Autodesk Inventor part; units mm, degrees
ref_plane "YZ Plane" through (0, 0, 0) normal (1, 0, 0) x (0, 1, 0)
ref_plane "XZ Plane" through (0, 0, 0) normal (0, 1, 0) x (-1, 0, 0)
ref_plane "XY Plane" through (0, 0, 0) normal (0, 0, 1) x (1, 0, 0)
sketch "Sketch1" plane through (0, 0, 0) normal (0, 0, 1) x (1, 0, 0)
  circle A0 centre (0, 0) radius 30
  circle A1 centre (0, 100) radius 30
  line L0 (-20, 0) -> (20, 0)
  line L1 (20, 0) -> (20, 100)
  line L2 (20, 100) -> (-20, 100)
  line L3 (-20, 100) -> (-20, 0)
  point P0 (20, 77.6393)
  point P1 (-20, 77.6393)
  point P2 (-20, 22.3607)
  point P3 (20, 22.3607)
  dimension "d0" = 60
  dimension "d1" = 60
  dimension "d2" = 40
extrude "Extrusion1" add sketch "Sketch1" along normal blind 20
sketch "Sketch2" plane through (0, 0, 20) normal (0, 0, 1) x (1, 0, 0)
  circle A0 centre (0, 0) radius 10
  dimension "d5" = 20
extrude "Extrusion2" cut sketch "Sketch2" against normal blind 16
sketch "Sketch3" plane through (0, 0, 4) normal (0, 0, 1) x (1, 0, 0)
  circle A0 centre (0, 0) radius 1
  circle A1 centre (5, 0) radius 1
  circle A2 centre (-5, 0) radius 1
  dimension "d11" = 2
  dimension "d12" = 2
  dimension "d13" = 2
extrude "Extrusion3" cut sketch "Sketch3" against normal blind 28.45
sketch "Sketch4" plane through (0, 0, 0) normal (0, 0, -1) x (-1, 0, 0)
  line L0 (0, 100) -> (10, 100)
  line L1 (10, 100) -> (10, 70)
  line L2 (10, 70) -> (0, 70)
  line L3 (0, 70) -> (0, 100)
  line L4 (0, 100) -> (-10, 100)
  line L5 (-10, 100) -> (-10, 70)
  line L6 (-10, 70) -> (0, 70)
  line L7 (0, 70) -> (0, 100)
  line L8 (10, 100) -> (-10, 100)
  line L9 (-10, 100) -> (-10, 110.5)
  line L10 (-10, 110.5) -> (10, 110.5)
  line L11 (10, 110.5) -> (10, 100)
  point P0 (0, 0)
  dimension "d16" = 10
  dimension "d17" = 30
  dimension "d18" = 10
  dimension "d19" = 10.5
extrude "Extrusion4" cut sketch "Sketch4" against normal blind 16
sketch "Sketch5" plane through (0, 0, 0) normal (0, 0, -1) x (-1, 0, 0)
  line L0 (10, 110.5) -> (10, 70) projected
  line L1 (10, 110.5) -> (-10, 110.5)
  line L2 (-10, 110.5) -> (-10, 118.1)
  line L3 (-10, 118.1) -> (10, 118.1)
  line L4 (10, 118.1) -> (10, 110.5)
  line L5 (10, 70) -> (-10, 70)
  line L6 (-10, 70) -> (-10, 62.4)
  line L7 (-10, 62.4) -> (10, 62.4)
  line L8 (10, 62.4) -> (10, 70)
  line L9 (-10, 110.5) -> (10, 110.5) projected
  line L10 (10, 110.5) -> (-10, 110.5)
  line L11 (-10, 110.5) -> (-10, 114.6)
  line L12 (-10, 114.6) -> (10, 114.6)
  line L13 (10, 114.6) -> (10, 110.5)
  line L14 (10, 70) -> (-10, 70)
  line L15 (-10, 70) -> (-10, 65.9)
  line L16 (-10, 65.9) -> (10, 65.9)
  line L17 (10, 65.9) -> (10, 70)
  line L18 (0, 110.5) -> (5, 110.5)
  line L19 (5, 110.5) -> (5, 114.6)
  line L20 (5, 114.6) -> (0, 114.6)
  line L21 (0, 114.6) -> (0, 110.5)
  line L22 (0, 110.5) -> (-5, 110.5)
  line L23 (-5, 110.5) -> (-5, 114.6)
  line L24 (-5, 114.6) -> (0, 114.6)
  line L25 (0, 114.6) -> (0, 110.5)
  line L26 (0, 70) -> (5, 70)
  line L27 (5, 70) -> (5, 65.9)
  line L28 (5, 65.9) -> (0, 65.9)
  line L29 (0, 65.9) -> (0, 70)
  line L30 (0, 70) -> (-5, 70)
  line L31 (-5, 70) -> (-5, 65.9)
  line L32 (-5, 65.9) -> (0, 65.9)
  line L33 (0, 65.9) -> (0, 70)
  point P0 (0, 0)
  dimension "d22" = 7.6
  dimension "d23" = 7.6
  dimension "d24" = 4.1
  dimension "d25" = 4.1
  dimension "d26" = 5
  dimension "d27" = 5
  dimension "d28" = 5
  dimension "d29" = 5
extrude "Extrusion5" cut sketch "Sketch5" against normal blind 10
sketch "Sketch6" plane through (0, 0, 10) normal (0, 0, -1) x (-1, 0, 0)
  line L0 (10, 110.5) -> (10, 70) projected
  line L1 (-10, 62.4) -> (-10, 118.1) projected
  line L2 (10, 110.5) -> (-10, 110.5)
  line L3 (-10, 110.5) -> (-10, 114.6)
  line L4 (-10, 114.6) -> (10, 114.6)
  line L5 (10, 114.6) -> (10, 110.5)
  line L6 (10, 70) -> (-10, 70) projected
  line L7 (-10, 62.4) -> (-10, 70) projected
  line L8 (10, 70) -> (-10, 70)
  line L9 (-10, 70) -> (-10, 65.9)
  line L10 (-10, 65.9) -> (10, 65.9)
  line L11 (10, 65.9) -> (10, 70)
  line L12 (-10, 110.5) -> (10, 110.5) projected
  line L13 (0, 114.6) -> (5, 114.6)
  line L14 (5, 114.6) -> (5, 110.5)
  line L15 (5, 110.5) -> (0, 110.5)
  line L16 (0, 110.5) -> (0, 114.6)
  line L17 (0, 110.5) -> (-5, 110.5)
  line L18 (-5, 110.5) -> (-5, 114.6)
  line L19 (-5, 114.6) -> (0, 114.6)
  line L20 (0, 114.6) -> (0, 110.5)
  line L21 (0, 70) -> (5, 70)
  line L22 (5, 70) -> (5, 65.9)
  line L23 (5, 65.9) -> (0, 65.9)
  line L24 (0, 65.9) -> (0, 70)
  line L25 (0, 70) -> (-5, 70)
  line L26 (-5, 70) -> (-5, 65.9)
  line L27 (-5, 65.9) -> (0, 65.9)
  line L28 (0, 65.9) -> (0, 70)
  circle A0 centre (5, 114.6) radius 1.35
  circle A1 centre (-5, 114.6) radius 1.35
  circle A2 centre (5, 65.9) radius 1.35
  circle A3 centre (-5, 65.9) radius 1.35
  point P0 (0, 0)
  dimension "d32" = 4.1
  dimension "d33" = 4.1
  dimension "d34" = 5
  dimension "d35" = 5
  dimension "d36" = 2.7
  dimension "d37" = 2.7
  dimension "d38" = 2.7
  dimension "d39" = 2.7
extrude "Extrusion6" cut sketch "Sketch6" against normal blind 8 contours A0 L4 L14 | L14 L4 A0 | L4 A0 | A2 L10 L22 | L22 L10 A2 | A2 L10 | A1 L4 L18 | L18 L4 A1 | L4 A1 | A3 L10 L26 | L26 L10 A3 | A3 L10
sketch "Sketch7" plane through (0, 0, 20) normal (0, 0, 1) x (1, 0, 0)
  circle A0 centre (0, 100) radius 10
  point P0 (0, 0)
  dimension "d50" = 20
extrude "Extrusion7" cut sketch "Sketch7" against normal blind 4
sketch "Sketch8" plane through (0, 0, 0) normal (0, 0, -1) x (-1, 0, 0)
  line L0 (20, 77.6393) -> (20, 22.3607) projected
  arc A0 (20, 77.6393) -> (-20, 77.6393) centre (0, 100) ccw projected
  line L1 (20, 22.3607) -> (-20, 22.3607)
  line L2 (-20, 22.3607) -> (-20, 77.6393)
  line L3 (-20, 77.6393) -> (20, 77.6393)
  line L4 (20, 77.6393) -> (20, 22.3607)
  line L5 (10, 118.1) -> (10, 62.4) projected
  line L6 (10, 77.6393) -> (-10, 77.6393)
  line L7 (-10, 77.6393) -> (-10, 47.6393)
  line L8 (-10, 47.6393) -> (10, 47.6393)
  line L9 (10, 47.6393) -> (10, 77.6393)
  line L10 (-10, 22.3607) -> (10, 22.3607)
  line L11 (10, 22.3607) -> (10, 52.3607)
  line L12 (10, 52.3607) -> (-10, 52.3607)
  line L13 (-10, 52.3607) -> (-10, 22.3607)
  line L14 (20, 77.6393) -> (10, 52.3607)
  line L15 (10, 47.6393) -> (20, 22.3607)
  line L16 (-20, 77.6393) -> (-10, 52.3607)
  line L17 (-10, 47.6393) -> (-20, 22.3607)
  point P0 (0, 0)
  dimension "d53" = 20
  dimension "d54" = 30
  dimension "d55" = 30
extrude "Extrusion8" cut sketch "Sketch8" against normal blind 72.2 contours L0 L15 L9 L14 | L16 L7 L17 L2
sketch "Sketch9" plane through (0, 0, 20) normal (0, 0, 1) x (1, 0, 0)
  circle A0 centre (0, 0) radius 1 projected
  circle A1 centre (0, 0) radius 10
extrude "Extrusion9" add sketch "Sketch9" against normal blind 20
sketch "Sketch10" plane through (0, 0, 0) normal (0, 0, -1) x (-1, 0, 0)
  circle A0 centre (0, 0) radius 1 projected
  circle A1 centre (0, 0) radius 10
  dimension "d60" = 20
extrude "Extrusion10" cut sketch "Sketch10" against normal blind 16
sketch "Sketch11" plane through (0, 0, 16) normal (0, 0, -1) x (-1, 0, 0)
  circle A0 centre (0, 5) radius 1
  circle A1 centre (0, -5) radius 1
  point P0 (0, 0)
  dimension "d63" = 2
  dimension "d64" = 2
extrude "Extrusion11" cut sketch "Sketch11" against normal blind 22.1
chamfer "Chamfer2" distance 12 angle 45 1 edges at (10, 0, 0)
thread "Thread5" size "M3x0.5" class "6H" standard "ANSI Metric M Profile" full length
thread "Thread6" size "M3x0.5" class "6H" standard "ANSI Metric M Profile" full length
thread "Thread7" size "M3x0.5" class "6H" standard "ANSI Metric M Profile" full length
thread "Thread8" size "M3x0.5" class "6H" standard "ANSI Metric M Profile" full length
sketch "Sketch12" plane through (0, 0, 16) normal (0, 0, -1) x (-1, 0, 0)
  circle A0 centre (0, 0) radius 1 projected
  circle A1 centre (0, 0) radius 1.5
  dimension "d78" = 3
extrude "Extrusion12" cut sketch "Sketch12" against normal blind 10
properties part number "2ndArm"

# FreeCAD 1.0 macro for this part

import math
import FreeCAD as App
import Part
import Sketcher

V = App.Vector


def edges_at(feature, points):
    """Names of the edges that pass closest to the given points."""
    edges = feature.Shape.Edges
    near = lambda p: min(range(len(edges)), key=lambda i: edges[i].distToShape(Part.Vertex(*p))[0])
    return sorted({f"Edge{near(p) + 1}" for p in points})

doc = App.newDocument("Part")
params = doc.addObject("Spreadsheet::Sheet", "Params")
for row, (alias, value) in enumerate([
    ("sketch1_radius", "30 mm"),
    ("pad1_length", "20 mm"),
    ("sketch2_diameter", "20 mm"),
    ("pocket1_length", "16 mm"),
    ("sketch3_diameter", "2 mm"),
    ("pocket2_length", "28.45 mm"),
    ("sketch4_height", "40.5 mm"),
    ("pocket3_length", "16 mm"),
    ("sketch5_height", "7.6 mm"),
    ("sketch5_width", "20 mm"),
    ("pocket4_length", "10 mm"),
    ("sketch6_diameter", "2.7 mm"),
    ("pocket5_length", "8 mm"),
    ("sketch7_diameter", "20 mm"),
    ("pocket6_length", "4 mm"),
    ("pocket7_length", "72.2 mm"),
    ("sketch9_diameter", "20 mm"),
    ("sketch9_diameter2", "2 mm"),
    ("pad2_length", "20 mm"),
    ("sketch10_diameter", "20 mm"),
    ("sketch10_diameter2", "2 mm"),
    ("pocket8_length", "16 mm"),
    ("sketch11_diameter", "2 mm"),
    ("pocket9_length", "22.1 mm"),
    ("chamfer_size", "12 mm"),
    ("sketch12_diameter", "3 mm"),
    ("sketch12_diameter2", "2 mm"),
    ("pocket10_length", "10 mm"),
], start=1):
    params.set(f"A{row}", alias)
    params.set(f"B{row}", "=" + value)
    params.setAlias(f"B{row}", alias)

body = doc.addObject("PartDesign::Body", "Body")

# Sketch on XY plane
sketch1 = doc.addObject("Sketcher::SketchObject", "Sketch")
body.addObject(sketch1)
sketch1.AttachmentSupport = (doc.XY_Plane, [""])
sketch1.MapMode = "FlatFace"
sketch1.addGeometry([
    Part.ArcOfCircle(Part.Circle(V(0, 0, 0), V(0, 0, 1), 30), math.radians(131.810315), math.radians(408.189685)),
    Part.LineSegment(V(20, 22.36068, 0), V(20, 77.63932, 0)),
    Part.ArcOfCircle(Part.Circle(V(0, 100, 0), V(0, 0, 1), 30), math.radians(-48.189685), math.radians(228.189685)),
    Part.LineSegment(V(-20, 77.63932, 0), V(-20, 22.36068, 0)),
], False)
sketch1.addConstraint([
    Sketcher.Constraint("Coincident", 0, 2, 1, 1),
    Sketcher.Constraint("Coincident", 1, 2, 2, 1),
    Sketcher.Constraint("Coincident", 2, 2, 3, 1),
    Sketcher.Constraint("Coincident", 3, 2, 0, 1),
    Sketcher.Constraint("Vertical", 1),
    Sketcher.Constraint("Vertical", 3),
    Sketcher.Constraint("Coincident", 0, 3, -1, 1),
    Sketcher.Constraint("Equal", 0, 2),
    Sketcher.Constraint("Symmetric", 1, 2, 2, 2, -2),
    Sketcher.Constraint("Radius", 0, 30.0),
    Sketcher.Constraint("DistanceX", 2, 2, 1, 2, 40.0),
    Sketcher.Constraint("DistanceY", -1, 1, 2, 3, 100.0),
])
sketch1.setExpression("Constraints[9]", "Params.sketch1_radius")
pad1 = doc.addObject("PartDesign::Pad", "Pad")
body.addObject(pad1)
pad1.Profile = sketch1
pad1.setExpression("Length", "Params.pad1_length")

# Sketch on XY plane
sketch2 = doc.addObject("Sketcher::SketchObject", "Sketch001")
body.addObject(sketch2)
sketch2.AttachmentSupport = (doc.XY_Plane, [""])
sketch2.MapMode = "FlatFace"
sketch2.AttachmentOffset = App.Placement(V(0, 0, 20), App.Rotation())
sketch2.addGeometry(Part.Circle(V(0, 0, 0), V(0, 0, 1), 10), False)
sketch2.addConstraint([
    Sketcher.Constraint("Coincident", 0, 3, -1, 1),
    Sketcher.Constraint("Diameter", 0, 20.0),
])
sketch2.setExpression("Constraints[1]", "Params.sketch2_diameter")
pocket1 = doc.addObject("PartDesign::Pocket", "Pocket")
body.addObject(pocket1)
pocket1.Profile = sketch2
pocket1.setExpression("Length", "Params.pocket1_length")

# Sketch on XY plane
sketch3 = doc.addObject("Sketcher::SketchObject", "Sketch002")
body.addObject(sketch3)
sketch3.AttachmentSupport = (doc.XY_Plane, [""])
sketch3.MapMode = "FlatFace"
sketch3.AttachmentOffset = App.Placement(V(0, 0, 4), App.Rotation())
sketch3.addGeometry([
    Part.Circle(V(0, 0, 0), V(0, 0, 1), 1),
    Part.Circle(V(5, 0, 0), V(0, 0, 1), 1),
    Part.Circle(V(-5, 0, 0), V(0, 0, 1), 1),
], False)
sketch3.addConstraint([
    Sketcher.Constraint("Coincident", 0, 3, -1, 1),
    Sketcher.Constraint("Equal", 0, 1),
    Sketcher.Constraint("Equal", 1, 2),
    Sketcher.Constraint("Symmetric", 1, 3, 2, 3, -1, 1),
    Sketcher.Constraint("PointOnObject", 1, 3, -1),
    Sketcher.Constraint("Diameter", 0, 2.0),
    Sketcher.Constraint("DistanceX", -1, 1, 1, 3, 5.0),
])
sketch3.setExpression("Constraints[5]", "Params.sketch3_diameter")
pocket2 = doc.addObject("PartDesign::Pocket", "Pocket001")
body.addObject(pocket2)
pocket2.Profile = sketch3
pocket2.setExpression("Length", "Params.pocket2_length")

# Sketch on XY plane
sketch4 = doc.addObject("Sketcher::SketchObject", "Sketch003")
body.addObject(sketch4)
sketch4.AttachmentSupport = (doc.XY_Plane, [""])
sketch4.MapMode = "FlatFace"
sketch4.addGeometry([
    Part.LineSegment(V(10, 110.5, 0), V(10, 70, 0)),
    Part.LineSegment(V(10, 70, 0), V(-10, 70, 0)),
    Part.LineSegment(V(-10, 70, 0), V(-10, 110.5, 0)),
    Part.LineSegment(V(-10, 110.5, 0), V(10, 110.5, 0)),
], False)
sketch4.addConstraint([
    Sketcher.Constraint("Coincident", 0, 2, 1, 1),
    Sketcher.Constraint("Coincident", 1, 2, 2, 1),
    Sketcher.Constraint("Coincident", 2, 2, 3, 1),
    Sketcher.Constraint("Coincident", 3, 2, 0, 1),
    Sketcher.Constraint("Vertical", 0),
    Sketcher.Constraint("Horizontal", 1),
    Sketcher.Constraint("Vertical", 2),
    Sketcher.Constraint("Horizontal", 3),
    Sketcher.Constraint("DistanceX", -1, 1, 0, 2, 10.0),
    Sketcher.Constraint("DistanceX", 1, 2, -1, 1, 10.0),
    Sketcher.Constraint("DistanceY", 0, 2, 0, 1, 40.5),
    Sketcher.Constraint("DistanceY", -1, 1, 0, 2, 70.0),
])
sketch4.setExpression("Constraints[10]", "Params.sketch4_height")
pocket3 = doc.addObject("PartDesign::Pocket", "Pocket002")
body.addObject(pocket3)
pocket3.Profile = sketch4
pocket3.setExpression("Length", "Params.pocket3_length")
pocket3.Reversed = True

# Sketch on XY plane
sketch5 = doc.addObject("Sketcher::SketchObject", "Sketch004")
body.addObject(sketch5)
sketch5.AttachmentSupport = (doc.XY_Plane, [""])
sketch5.MapMode = "FlatFace"
sketch5.addGeometry([
    Part.LineSegment(V(-10, 70, 0), V(10, 70, 0)),  # 0
    Part.LineSegment(V(10, 70, 0), V(10, 62.4, 0)),  # 1
    Part.LineSegment(V(10, 62.4, 0), V(-10, 62.4, 0)),  # 2
    Part.LineSegment(V(-10, 62.4, 0), V(-10, 70, 0)),  # 3
    Part.LineSegment(V(-10, 110.5, 0), V(-10, 118.1, 0)),  # 4
    Part.LineSegment(V(-10, 118.1, 0), V(10, 118.1, 0)),  # 5
    Part.LineSegment(V(10, 118.1, 0), V(10, 110.5, 0)),  # 6
    Part.LineSegment(V(10, 110.5, 0), V(-10, 110.5, 0)),  # 7
], False)
sketch5.addConstraint([
    Sketcher.Constraint("Coincident", 0, 2, 1, 1),
    Sketcher.Constraint("Coincident", 1, 2, 2, 1),
    Sketcher.Constraint("Coincident", 2, 2, 3, 1),
    Sketcher.Constraint("Coincident", 3, 2, 0, 1),
    Sketcher.Constraint("Coincident", 4, 2, 5, 1),
    Sketcher.Constraint("Coincident", 5, 2, 6, 1),
    Sketcher.Constraint("Coincident", 6, 2, 7, 1),
    Sketcher.Constraint("Coincident", 7, 2, 4, 1),
    Sketcher.Constraint("Horizontal", 0),
    Sketcher.Constraint("Vertical", 1),
    Sketcher.Constraint("Horizontal", 2),
    Sketcher.Constraint("Vertical", 3),
    Sketcher.Constraint("Vertical", 4),
    Sketcher.Constraint("Horizontal", 5),
    Sketcher.Constraint("Vertical", 6),
    Sketcher.Constraint("Horizontal", 7),
    Sketcher.Constraint("Vertical", 3, 2, 4, 2),
    Sketcher.Constraint("Vertical", 1, 2, 5, 2),
    Sketcher.Constraint("Equal", 3, 4),
    Sketcher.Constraint("DistanceY", 1, 2, 1, 1, 7.6),
    Sketcher.Constraint("DistanceX", 0, 1, 0, 2, 20.0),
    Sketcher.Constraint("DistanceX", -1, 1, 0, 2, 10.0),
    Sketcher.Constraint("DistanceY", -1, 1, 0, 2, 70.0),
    Sketcher.Constraint("DistanceY", -1, 1, 4, 2, 118.1),
])
sketch5.setExpression("Constraints[19]", "Params.sketch5_height")
sketch5.setExpression("Constraints[20]", "Params.sketch5_width")
pocket4 = doc.addObject("PartDesign::Pocket", "Pocket003")
body.addObject(pocket4)
pocket4.Profile = sketch5
pocket4.setExpression("Length", "Params.pocket4_length")
pocket4.Reversed = True

# Sketch on XY plane
sketch6 = doc.addObject("Sketcher::SketchObject", "Sketch005")
body.addObject(sketch6)
sketch6.AttachmentSupport = (doc.XY_Plane, [""])
sketch6.MapMode = "FlatFace"
sketch6.AttachmentOffset = App.Placement(V(0, 0, 10), App.Rotation())
sketch6.addGeometry([
    Part.Circle(V(-5, 114.6, 0), V(0, 0, 1), 1.35),
    Part.Circle(V(-5, 65.9, 0), V(0, 0, 1), 1.35),
    Part.Circle(V(5, 114.6, 0), V(0, 0, 1), 1.35),
    Part.Circle(V(5, 65.9, 0), V(0, 0, 1), 1.35),
], False)
sketch6.addConstraint([
    Sketcher.Constraint("Equal", 0, 1),
    Sketcher.Constraint("Equal", 1, 2),
    Sketcher.Constraint("Equal", 2, 3),
    Sketcher.Constraint("Symmetric", 0, 3, 2, 3, -2),
    Sketcher.Constraint("Symmetric", 1, 3, 3, 3, -2),
    Sketcher.Constraint("Vertical", 0, 3, 1, 3),
    Sketcher.Constraint("Diameter", 0, 2.7),
    Sketcher.Constraint("DistanceX", 0, 3, -1, 1, 5.0),
    Sketcher.Constraint("DistanceY", -1, 1, 0, 3, 114.6),
    Sketcher.Constraint("DistanceY", -1, 1, 1, 3, 65.9),
])
sketch6.setExpression("Constraints[6]", "Params.sketch6_diameter")
pocket5 = doc.addObject("PartDesign::Pocket", "Pocket004")
body.addObject(pocket5)
pocket5.Profile = sketch6
pocket5.setExpression("Length", "Params.pocket5_length")
pocket5.Reversed = True

# Sketch on XY plane
sketch7 = doc.addObject("Sketcher::SketchObject", "Sketch006")
body.addObject(sketch7)
sketch7.AttachmentSupport = (doc.XY_Plane, [""])
sketch7.MapMode = "FlatFace"
sketch7.AttachmentOffset = App.Placement(V(0, 0, 20), App.Rotation())
sketch7.addGeometry(Part.Circle(V(0, 100, 0), V(0, 0, 1), 10), False)
sketch7.addConstraint([
    Sketcher.Constraint("PointOnObject", 0, 3, -2),
    Sketcher.Constraint("Diameter", 0, 20.0),
    Sketcher.Constraint("DistanceY", -1, 1, 0, 3, 100.0),
])
sketch7.setExpression("Constraints[1]", "Params.sketch7_diameter")
pocket6 = doc.addObject("PartDesign::Pocket", "Pocket005")
body.addObject(pocket6)
pocket6.Profile = sketch7
pocket6.setExpression("Length", "Params.pocket6_length")

# Sketch on XY plane
sketch8 = doc.addObject("Sketcher::SketchObject", "Sketch007")
body.addObject(sketch8)
sketch8.AttachmentSupport = (doc.XY_Plane, [""])
sketch8.MapMode = "FlatFace"
sketch8.addGeometry([
    Part.LineSegment(V(-20, 22.3607, 0), V(-20, 77.6393, 0)),  # 0
    Part.LineSegment(V(-20, 77.6393, 0), V(-10, 52.3607, 0)),  # 1
    Part.LineSegment(V(-10, 52.3607, 0), V(-10, 47.6393, 0)),  # 2
    Part.LineSegment(V(-10, 47.6393, 0), V(-20, 22.3607, 0)),  # 3
    Part.LineSegment(V(10, 52.3607, 0), V(20, 77.6393, 0)),  # 4
    Part.LineSegment(V(20, 77.6393, 0), V(20, 22.3607, 0)),  # 5
    Part.LineSegment(V(20, 22.3607, 0), V(10, 47.6393, 0)),  # 6
    Part.LineSegment(V(10, 47.6393, 0), V(10, 52.3607, 0)),  # 7
], False)
sketch8.addConstraint([
    Sketcher.Constraint("Coincident", 0, 2, 1, 1),
    Sketcher.Constraint("Coincident", 1, 2, 2, 1),
    Sketcher.Constraint("Coincident", 2, 2, 3, 1),
    Sketcher.Constraint("Coincident", 3, 2, 0, 1),
    Sketcher.Constraint("Coincident", 4, 2, 5, 1),
    Sketcher.Constraint("Coincident", 5, 2, 6, 1),
    Sketcher.Constraint("Coincident", 6, 2, 7, 1),
    Sketcher.Constraint("Coincident", 7, 2, 4, 1),
    Sketcher.Constraint("Vertical", 0),
    Sketcher.Constraint("Vertical", 2),
    Sketcher.Constraint("Vertical", 5),
    Sketcher.Constraint("Vertical", 7),
    Sketcher.Constraint("Symmetric", 0, 2, 4, 2, -2),
    Sketcher.Constraint("Symmetric", 2, 2, 6, 2, -2),
    Sketcher.Constraint("Parallel", 3, 4),
    Sketcher.Constraint("Parallel", 1, 6),
    Sketcher.Constraint("Horizontal", 3, 2, 5, 2),
    Sketcher.Constraint("DistanceX", 0, 2, -1, 1, 20.0),
    Sketcher.Constraint("DistanceY", 2, 2, 0, 2, 30.0),
    Sketcher.Constraint("DistanceX", 1, 2, 4, 2, 30.0),
    Sketcher.Constraint("DistanceY", 0, 1, 0, 2, 55.2786),
    Sketcher.Constraint("DistanceY", -1, 1, 0, 2, 77.6393),
])
pocket7 = doc.addObject("PartDesign::Pocket", "Pocket006")
body.addObject(pocket7)
pocket7.Profile = sketch8
pocket7.setExpression("Length", "Params.pocket7_length")
pocket7.Reversed = True

# Sketch on XY plane
sketch9 = doc.addObject("Sketcher::SketchObject", "Sketch008")
body.addObject(sketch9)
sketch9.AttachmentSupport = (doc.XY_Plane, [""])
sketch9.MapMode = "FlatFace"
sketch9.AttachmentOffset = App.Placement(V(0, 0, 20), App.Rotation())
sketch9.addGeometry([
    Part.Circle(V(0, 0, 0), V(0, 0, 1), 10),
    Part.Circle(V(0, 0, 0), V(0, 0, 1), 1),
], False)
sketch9.addConstraint([
    Sketcher.Constraint("Coincident", 0, 3, -1, 1),
    Sketcher.Constraint("Coincident", 1, 3, -1, 1),
    Sketcher.Constraint("Diameter", 0, 20.0),
    Sketcher.Constraint("Diameter", 1, 2.0),
])
sketch9.setExpression("Constraints[2]", "Params.sketch9_diameter")
sketch9.setExpression("Constraints[3]", "Params.sketch9_diameter2")
pad2 = doc.addObject("PartDesign::Pad", "Pad001")
body.addObject(pad2)
pad2.Profile = sketch9
pad2.setExpression("Length", "Params.pad2_length")
pad2.Reversed = True

# Sketch on XY plane
sketch10 = doc.addObject("Sketcher::SketchObject", "Sketch009")
body.addObject(sketch10)
sketch10.AttachmentSupport = (doc.XY_Plane, [""])
sketch10.MapMode = "FlatFace"
sketch10.addGeometry([
    Part.Circle(V(0, 0, 0), V(0, 0, 1), 10),
    Part.Circle(V(0, 0, 0), V(0, 0, 1), 1),
], False)
sketch10.addConstraint([
    Sketcher.Constraint("Coincident", 0, 3, -1, 1),
    Sketcher.Constraint("Coincident", 1, 3, -1, 1),
    Sketcher.Constraint("Diameter", 0, 20.0),
    Sketcher.Constraint("Diameter", 1, 2.0),
])
sketch10.setExpression("Constraints[2]", "Params.sketch10_diameter")
sketch10.setExpression("Constraints[3]", "Params.sketch10_diameter2")
pocket8 = doc.addObject("PartDesign::Pocket", "Pocket007")
body.addObject(pocket8)
pocket8.Profile = sketch10
pocket8.setExpression("Length", "Params.pocket8_length")
pocket8.Reversed = True

# Sketch on XY plane
sketch11 = doc.addObject("Sketcher::SketchObject", "Sketch010")
body.addObject(sketch11)
sketch11.AttachmentSupport = (doc.XY_Plane, [""])
sketch11.MapMode = "FlatFace"
sketch11.AttachmentOffset = App.Placement(V(0, 0, 16), App.Rotation())
sketch11.addGeometry([
    Part.Circle(V(0, 5, 0), V(0, 0, 1), 1),
    Part.Circle(V(0, -5, 0), V(0, 0, 1), 1),
], False)
sketch11.addConstraint([
    Sketcher.Constraint("Equal", 0, 1),
    Sketcher.Constraint("Symmetric", 0, 3, 1, 3, -1, 1),
    Sketcher.Constraint("PointOnObject", 0, 3, -2),
    Sketcher.Constraint("Diameter", 0, 2.0),
    Sketcher.Constraint("DistanceY", -1, 1, 0, 3, 5.0),
])
sketch11.setExpression("Constraints[3]", "Params.sketch11_diameter")
pocket9 = doc.addObject("PartDesign::Pocket", "Pocket008")
body.addObject(pocket9)
pocket9.Profile = sketch11
pocket9.setExpression("Length", "Params.pocket9_length")
pocket9.Reversed = True
doc.recompute()

chamfer = doc.addObject("PartDesign::Chamfer", "Chamfer")
body.addObject(chamfer)
chamfer.Base = (pocket9, edges_at(pocket9, [(10, 0, 0)]))
chamfer.setExpression("Size", "Params.chamfer_size")

# Sketch on XY plane
sketch12 = doc.addObject("Sketcher::SketchObject", "Sketch011")
body.addObject(sketch12)
sketch12.AttachmentSupport = (doc.XY_Plane, [""])
sketch12.MapMode = "FlatFace"
sketch12.AttachmentOffset = App.Placement(V(0, 0, 16), App.Rotation())
sketch12.addGeometry([
    Part.Circle(V(0, 0, 0), V(0, 0, 1), 1.5),
    Part.Circle(V(0, 0, 0), V(0, 0, 1), 1),
], False)
sketch12.addConstraint([
    Sketcher.Constraint("Coincident", 0, 3, -1, 1),
    Sketcher.Constraint("Coincident", 1, 3, -1, 1),
    Sketcher.Constraint("Diameter", 0, 3.0),
    Sketcher.Constraint("Diameter", 1, 2.0),
])
sketch12.setExpression("Constraints[2]", "Params.sketch12_diameter")
sketch12.setExpression("Constraints[3]", "Params.sketch12_diameter2")
pocket10 = doc.addObject("PartDesign::Pocket", "Pocket009")
body.addObject(pocket10)
pocket10.Profile = sketch12
pocket10.setExpression("Length", "Params.pocket10_length")
pocket10.Reversed = True

doc.recompute()
